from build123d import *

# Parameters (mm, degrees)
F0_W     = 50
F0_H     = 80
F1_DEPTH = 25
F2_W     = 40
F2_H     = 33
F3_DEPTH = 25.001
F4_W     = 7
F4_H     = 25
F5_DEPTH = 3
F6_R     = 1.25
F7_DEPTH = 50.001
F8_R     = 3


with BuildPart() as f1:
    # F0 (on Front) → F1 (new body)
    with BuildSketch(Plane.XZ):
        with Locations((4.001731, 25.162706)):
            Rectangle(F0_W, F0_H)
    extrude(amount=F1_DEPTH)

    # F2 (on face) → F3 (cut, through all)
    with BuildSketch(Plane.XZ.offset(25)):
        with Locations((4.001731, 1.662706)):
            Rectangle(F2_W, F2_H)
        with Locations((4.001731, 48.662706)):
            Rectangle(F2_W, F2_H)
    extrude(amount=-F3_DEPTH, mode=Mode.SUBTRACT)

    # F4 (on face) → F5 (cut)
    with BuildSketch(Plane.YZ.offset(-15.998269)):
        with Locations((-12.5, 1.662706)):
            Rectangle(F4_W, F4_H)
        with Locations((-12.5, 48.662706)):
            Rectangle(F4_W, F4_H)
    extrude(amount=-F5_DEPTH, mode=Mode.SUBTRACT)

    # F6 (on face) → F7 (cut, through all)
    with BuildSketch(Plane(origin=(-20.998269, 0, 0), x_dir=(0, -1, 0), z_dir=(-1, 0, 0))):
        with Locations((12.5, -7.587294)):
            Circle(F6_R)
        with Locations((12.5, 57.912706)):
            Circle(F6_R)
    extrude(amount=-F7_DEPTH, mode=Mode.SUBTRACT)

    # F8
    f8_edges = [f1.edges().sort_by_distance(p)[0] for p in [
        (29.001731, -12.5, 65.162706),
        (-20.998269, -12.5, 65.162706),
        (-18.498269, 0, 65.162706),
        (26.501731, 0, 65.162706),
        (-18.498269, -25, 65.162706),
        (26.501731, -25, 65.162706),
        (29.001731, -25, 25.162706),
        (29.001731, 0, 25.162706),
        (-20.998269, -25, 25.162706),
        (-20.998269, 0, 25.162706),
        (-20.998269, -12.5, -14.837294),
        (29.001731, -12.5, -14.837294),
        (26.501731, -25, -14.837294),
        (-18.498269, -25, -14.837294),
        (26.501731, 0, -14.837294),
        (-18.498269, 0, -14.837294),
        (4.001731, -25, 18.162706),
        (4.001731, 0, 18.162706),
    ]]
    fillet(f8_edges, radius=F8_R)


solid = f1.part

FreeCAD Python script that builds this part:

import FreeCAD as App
import Part
import Sketcher


def edges_at(feature, points):
    """Names of the edges that pass closest to the given points."""
    edges = feature.Shape.Edges
    near = lambda p: min(range(len(edges)), key=lambda i: edges[i].distToShape(Part.Vertex(*p))[0])
    return sorted({f"Edge{near(p) + 1}" for p in points})

doc = App.newDocument("Part")
params = doc.addObject("Spreadsheet::Sheet", "Params")
for row, (alias, value) in enumerate([
    ("sketch1_width", "50 mm"),
    ("sketch1_height", "80 mm"),
    ("pad1_length", "25 mm"),
    ("sketch2_width", "40 mm"),
    ("sketch2_height", "33 mm"),
    ("sketch3_width", "7 mm"),
    ("sketch3_height", "25 mm"),
    ("pocket2_length", "3 mm"),
    ("sketch4_diameter", "2.5 mm"),
    ("fillet_radius", "3 mm"),
], start=1):
    params.set(f"A{row}", alias)
    params.set(f"B{row}", "=" + value)
    params.setAlias(f"B{row}", alias)

body = doc.addObject("PartDesign::Body", "Body")

sketch1 = doc.addObject("Sketcher::SketchObject", "Sketch")
body.addObject(sketch1)
sketch1.AttachmentSupport = (doc.XZ_Plane, [""])
sketch1.MapMode = "FlatFace"
sketch1.addGeometry(Part.LineSegment(App.Vector(-21, 65, 0), App.Vector(-21, -15, 0)), False)
sketch1.addGeometry(Part.LineSegment(App.Vector(-21, -15, 0), App.Vector(29, -15, 0)), False)
sketch1.addGeometry(Part.LineSegment(App.Vector(29, -15, 0), App.Vector(29, 65, 0)), False)
sketch1.addGeometry(Part.LineSegment(App.Vector(29, 65, 0), App.Vector(-21, 65, 0)), False)
sketch1.addConstraint(Sketcher.Constraint("Coincident", 0, 2, 1, 1))
sketch1.addConstraint(Sketcher.Constraint("Coincident", 1, 2, 2, 1))
sketch1.addConstraint(Sketcher.Constraint("Coincident", 2, 2, 3, 1))
sketch1.addConstraint(Sketcher.Constraint("Coincident", 3, 2, 0, 1))
sketch1.addConstraint(Sketcher.Constraint("Vertical", 0))
sketch1.addConstraint(Sketcher.Constraint("Horizontal", 1))
sketch1.addConstraint(Sketcher.Constraint("Vertical", 2))
sketch1.addConstraint(Sketcher.Constraint("Horizontal", 3))
sketch1.addConstraint(Sketcher.Constraint("DistanceX", 1, 1, 1, 2, 50.0))
sketch1.addConstraint(Sketcher.Constraint("DistanceY", 0, 2, 0, 1, 80.0))
sketch1.addConstraint(Sketcher.Constraint("DistanceX", 0, 2, -1, 1, 20.998269))
sketch1.addConstraint(Sketcher.Constraint("DistanceY", 0, 2, -1, 1, 14.837294))
sketch1.setExpression("Constraints[8]", "Params.sketch1_width")
sketch1.setExpression("Constraints[9]", "Params.sketch1_height")
pad1 = doc.addObject("PartDesign::Pad", "Pad")
body.addObject(pad1)
pad1.Profile = sketch1
pad1.setExpression("Length", "Params.pad1_length")

sketch2 = doc.addObject("Sketcher::SketchObject", "Sketch001")
body.addObject(sketch2)
sketch2.AttachmentSupport = (doc.XZ_Plane, [""])
sketch2.MapMode = "FlatFace"
sketch2.AttachmentOffset = App.Placement(App.Vector(0, 0, 25), App.Rotation())
sketch2.addGeometry(Part.LineSegment(App.Vector(-16, 18, 0), App.Vector(-16, -15, 0)), False)
sketch2.addGeometry(Part.LineSegment(App.Vector(-16, -15, 0), App.Vector(24, -15, 0)), False)
sketch2.addGeometry(Part.LineSegment(App.Vector(24, -15, 0), App.Vector(24, 18, 0)), False)
sketch2.addGeometry(Part.LineSegment(App.Vector(24, 18, 0), App.Vector(-16, 18, 0)), False)
sketch2.addGeometry(Part.LineSegment(App.Vector(-16, 65, 0), App.Vector(-16, 32, 0)), False)
sketch2.addGeometry(Part.LineSegment(App.Vector(-16, 32, 0), App.Vector(24, 32, 0)), False)
sketch2.addGeometry(Part.LineSegment(App.Vector(24, 32, 0), App.Vector(24, 65, 0)), False)
sketch2.addGeometry(Part.LineSegment(App.Vector(24, 65, 0), App.Vector(-16, 65, 0)), False)
sketch2.addConstraint(Sketcher.Constraint("Coincident", 0, 2, 1, 1))
sketch2.addConstraint(Sketcher.Constraint("Coincident", 1, 2, 2, 1))
sketch2.addConstraint(Sketcher.Constraint("Coincident", 2, 2, 3, 1))
sketch2.addConstraint(Sketcher.Constraint("Coincident", 3, 2, 0, 1))
sketch2.addConstraint(Sketcher.Constraint("Coincident", 4, 2, 5, 1))
sketch2.addConstraint(Sketcher.Constraint("Coincident", 5, 2, 6, 1))
sketch2.addConstraint(Sketcher.Constraint("Coincident", 6, 2, 7, 1))
sketch2.addConstraint(Sketcher.Constraint("Coincident", 7, 2, 4, 1))
sketch2.addConstraint(Sketcher.Constraint("Vertical", 0))
sketch2.addConstraint(Sketcher.Constraint("Horizontal", 1))
sketch2.addConstraint(Sketcher.Constraint("Vertical", 2))
sketch2.addConstraint(Sketcher.Constraint("Horizontal", 3))
sketch2.addConstraint(Sketcher.Constraint("Vertical", 4))
sketch2.addConstraint(Sketcher.Constraint("Horizontal", 5))
sketch2.addConstraint(Sketcher.Constraint("Vertical", 6))
sketch2.addConstraint(Sketcher.Constraint("Horizontal", 7))
sketch2.addConstraint(Sketcher.Constraint("Vertical", 3, 2, 4, 2))
sketch2.addConstraint(Sketcher.Constraint("Vertical", 2, 2, 5, 2))
sketch2.addConstraint(Sketcher.Constraint("Equal", 2, 4))
sketch2.addConstraint(Sketcher.Constraint("DistanceX", 1, 1, 1, 2, 40.0))
sketch2.addConstraint(Sketcher.Constraint("DistanceY", 0, 2, 0, 1, 33.0))
sketch2.addConstraint(Sketcher.Constraint("DistanceY", 3, 2, 4, 2, 14.0))
sketch2.addConstraint(Sketcher.Constraint("DistanceX", 0, 2, -1, 1, 15.998269))
sketch2.addConstraint(Sketcher.Constraint("DistanceY", 0, 2, -1, 1, 14.837294))
sketch2.setExpression("Constraints[19]", "Params.sketch2_width")
sketch2.setExpression("Constraints[20]", "Params.sketch2_height")
pocket1 = doc.addObject("PartDesign::Pocket", "Pocket")
body.addObject(pocket1)
pocket1.Profile = sketch2
pocket1.Type = "ThroughAll"

sketch3 = doc.addObject("Sketcher::SketchObject", "Sketch002")
body.addObject(sketch3)
sketch3.AttachmentSupport = (doc.YZ_Plane, [""])
sketch3.MapMode = "FlatFace"
sketch3.AttachmentOffset = App.Placement(App.Vector(0, 0, -15.998269), App.Rotation())
sketch3.addGeometry(Part.LineSegment(App.Vector(-16, 14, 0), App.Vector(-16, -11, 0)), False)
sketch3.addGeometry(Part.LineSegment(App.Vector(-16, -11, 0), App.Vector(-9, -11, 0)), False)
sketch3.addGeometry(Part.LineSegment(App.Vector(-9, -11, 0), App.Vector(-9, 14, 0)), False)
sketch3.addGeometry(Part.LineSegment(App.Vector(-9, 14, 0), App.Vector(-16, 14, 0)), False)
sketch3.addGeometry(Part.LineSegment(App.Vector(-16, 61, 0), App.Vector(-16, 36, 0)), False)
sketch3.addGeometry(Part.LineSegment(App.Vector(-16, 36, 0), App.Vector(-9, 36, 0)), False)
sketch3.addGeometry(Part.LineSegment(App.Vector(-9, 36, 0), App.Vector(-9, 61, 0)), False)
sketch3.addGeometry(Part.LineSegment(App.Vector(-9, 61, 0), App.Vector(-16, 61, 0)), False)
sketch3.addConstraint(Sketcher.Constraint("Coincident", 0, 2, 1, 1))
sketch3.addConstraint(Sketcher.Constraint("Coincident", 1, 2, 2, 1))
sketch3.addConstraint(Sketcher.Constraint("Coincident", 2, 2, 3, 1))
sketch3.addConstraint(Sketcher.Constraint("Coincident", 3, 2, 0, 1))
sketch3.addConstraint(Sketcher.Constraint("Coincident", 4, 2, 5, 1))
sketch3.addConstraint(Sketcher.Constraint("Coincident", 5, 2, 6, 1))
sketch3.addConstraint(Sketcher.Constraint("Coincident", 6, 2, 7, 1))
sketch3.addConstraint(Sketcher.Constraint("Coincident", 7, 2, 4, 1))
sketch3.addConstraint(Sketcher.Constraint("Vertical", 0))
sketch3.addConstraint(Sketcher.Constraint("Horizontal", 1))
sketch3.addConstraint(Sketcher.Constraint("Vertical", 2))
sketch3.addConstraint(Sketcher.Constraint("Horizontal", 3))
sketch3.addConstraint(Sketcher.Constraint("Vertical", 4))
sketch3.addConstraint(Sketcher.Constraint("Horizontal", 5))
sketch3.addConstraint(Sketcher.Constraint("Vertical", 6))
sketch3.addConstraint(Sketcher.Constraint("Horizontal", 7))
sketch3.addConstraint(Sketcher.Constraint("Vertical", 3, 2, 4, 2))
sketch3.addConstraint(Sketcher.Constraint("Vertical", 2, 2, 5, 2))
sketch3.addConstraint(Sketcher.Constraint("Equal", 2, 4))
sketch3.addConstraint(Sketcher.Constraint("DistanceX", 1, 1, 1, 2, 7.0))
sketch3.addConstraint(Sketcher.Constraint("DistanceY", 0, 2, 0, 1, 25.0))
sketch3.addConstraint(Sketcher.Constraint("DistanceX", 0, 2, -1, 1, 16.0))
sketch3.addConstraint(Sketcher.Constraint("DistanceY", 3, 2, 4, 2, 22.0))
sketch3.addConstraint(Sketcher.Constraint("DistanceY", 0, 2, -1, 1, 10.837294))
sketch3.setExpression("Constraints[19]", "Params.sketch3_width")
sketch3.setExpression("Constraints[20]", "Params.sketch3_height")
pocket2 = doc.addObject("PartDesign::Pocket", "Pocket001")
body.addObject(pocket2)
pocket2.Profile = sketch3
pocket2.setExpression("Length", "Params.pocket2_length")

sketch4 = doc.addObject("Sketcher::SketchObject", "Sketch003")
body.addObject(sketch4)
sketch4.AttachmentSupport = (doc.YZ_Plane, [""])
sketch4.MapMode = "FlatFace"
sketch4.AttachmentOffset = App.Placement(App.Vector(0, 0, -20.998269), App.Rotation())
sketch4.addGeometry(Part.Circle(App.Vector(-12.5, -7.6, 0), App.Vector(0, 0, 1), 1.2), False)
sketch4.addGeometry(Part.Circle(App.Vector(-12.5, 57.9, 0), App.Vector(0, 0, 1), 1.2), False)
sketch4.addConstraint(Sketcher.Constraint("Equal", 0, 1))
sketch4.addConstraint(Sketcher.Constraint("Vertical", 0, 3, 1, 3))
sketch4.addConstraint(Sketcher.Constraint("Diameter", 0, 2.5))
sketch4.addConstraint(Sketcher.Constraint("DistanceX", 0, 3, -1, 1, 12.5))
sketch4.addConstraint(Sketcher.Constraint("DistanceY", 0, 3, 1, 3, 65.5))
sketch4.addConstraint(Sketcher.Constraint("DistanceY", 0, 3, -1, 1, 7.587294))
sketch4.setExpression("Constraints[2]", "Params.sketch4_diameter")
pocket3 = doc.addObject("PartDesign::Pocket", "Pocket002")
body.addObject(pocket3)
pocket3.Profile = sketch4
pocket3.Type = "ThroughAll"
pocket3.Reversed = True
doc.recompute()

fillet = doc.addObject("PartDesign::Fillet", "Fillet")
body.addObject(fillet)
fillet.Base = (pocket3, edges_at(pocket3, [
    (29.002, -12.5, 65.163),
    (-20.998, -12.5, 65.163),
    (-18.498, 0, 65.163),
    (26.502, 0, 65.163),
    (-18.498, -25, 65.163),
    (26.502, -25, 65.163),
    (29.002, -25, 25.163),
    (29.002, 0, 25.163),
    (-20.998, -25, 25.163),
    (-20.998, 0, 25.163),
    (-20.998, -12.5, -14.837),
    (29.002, -12.5, -14.837),
    (26.502, -25, -14.837),
    (-18.498, -25, -14.837),
    (26.502, 0, -14.837),
    (-18.498, 0, -14.837),
    (4.002, -25, 18.163),
    (4.002, 0, 18.163),
]))
fillet.setExpression("Radius", "Params.fillet_radius")

doc.recompute()
